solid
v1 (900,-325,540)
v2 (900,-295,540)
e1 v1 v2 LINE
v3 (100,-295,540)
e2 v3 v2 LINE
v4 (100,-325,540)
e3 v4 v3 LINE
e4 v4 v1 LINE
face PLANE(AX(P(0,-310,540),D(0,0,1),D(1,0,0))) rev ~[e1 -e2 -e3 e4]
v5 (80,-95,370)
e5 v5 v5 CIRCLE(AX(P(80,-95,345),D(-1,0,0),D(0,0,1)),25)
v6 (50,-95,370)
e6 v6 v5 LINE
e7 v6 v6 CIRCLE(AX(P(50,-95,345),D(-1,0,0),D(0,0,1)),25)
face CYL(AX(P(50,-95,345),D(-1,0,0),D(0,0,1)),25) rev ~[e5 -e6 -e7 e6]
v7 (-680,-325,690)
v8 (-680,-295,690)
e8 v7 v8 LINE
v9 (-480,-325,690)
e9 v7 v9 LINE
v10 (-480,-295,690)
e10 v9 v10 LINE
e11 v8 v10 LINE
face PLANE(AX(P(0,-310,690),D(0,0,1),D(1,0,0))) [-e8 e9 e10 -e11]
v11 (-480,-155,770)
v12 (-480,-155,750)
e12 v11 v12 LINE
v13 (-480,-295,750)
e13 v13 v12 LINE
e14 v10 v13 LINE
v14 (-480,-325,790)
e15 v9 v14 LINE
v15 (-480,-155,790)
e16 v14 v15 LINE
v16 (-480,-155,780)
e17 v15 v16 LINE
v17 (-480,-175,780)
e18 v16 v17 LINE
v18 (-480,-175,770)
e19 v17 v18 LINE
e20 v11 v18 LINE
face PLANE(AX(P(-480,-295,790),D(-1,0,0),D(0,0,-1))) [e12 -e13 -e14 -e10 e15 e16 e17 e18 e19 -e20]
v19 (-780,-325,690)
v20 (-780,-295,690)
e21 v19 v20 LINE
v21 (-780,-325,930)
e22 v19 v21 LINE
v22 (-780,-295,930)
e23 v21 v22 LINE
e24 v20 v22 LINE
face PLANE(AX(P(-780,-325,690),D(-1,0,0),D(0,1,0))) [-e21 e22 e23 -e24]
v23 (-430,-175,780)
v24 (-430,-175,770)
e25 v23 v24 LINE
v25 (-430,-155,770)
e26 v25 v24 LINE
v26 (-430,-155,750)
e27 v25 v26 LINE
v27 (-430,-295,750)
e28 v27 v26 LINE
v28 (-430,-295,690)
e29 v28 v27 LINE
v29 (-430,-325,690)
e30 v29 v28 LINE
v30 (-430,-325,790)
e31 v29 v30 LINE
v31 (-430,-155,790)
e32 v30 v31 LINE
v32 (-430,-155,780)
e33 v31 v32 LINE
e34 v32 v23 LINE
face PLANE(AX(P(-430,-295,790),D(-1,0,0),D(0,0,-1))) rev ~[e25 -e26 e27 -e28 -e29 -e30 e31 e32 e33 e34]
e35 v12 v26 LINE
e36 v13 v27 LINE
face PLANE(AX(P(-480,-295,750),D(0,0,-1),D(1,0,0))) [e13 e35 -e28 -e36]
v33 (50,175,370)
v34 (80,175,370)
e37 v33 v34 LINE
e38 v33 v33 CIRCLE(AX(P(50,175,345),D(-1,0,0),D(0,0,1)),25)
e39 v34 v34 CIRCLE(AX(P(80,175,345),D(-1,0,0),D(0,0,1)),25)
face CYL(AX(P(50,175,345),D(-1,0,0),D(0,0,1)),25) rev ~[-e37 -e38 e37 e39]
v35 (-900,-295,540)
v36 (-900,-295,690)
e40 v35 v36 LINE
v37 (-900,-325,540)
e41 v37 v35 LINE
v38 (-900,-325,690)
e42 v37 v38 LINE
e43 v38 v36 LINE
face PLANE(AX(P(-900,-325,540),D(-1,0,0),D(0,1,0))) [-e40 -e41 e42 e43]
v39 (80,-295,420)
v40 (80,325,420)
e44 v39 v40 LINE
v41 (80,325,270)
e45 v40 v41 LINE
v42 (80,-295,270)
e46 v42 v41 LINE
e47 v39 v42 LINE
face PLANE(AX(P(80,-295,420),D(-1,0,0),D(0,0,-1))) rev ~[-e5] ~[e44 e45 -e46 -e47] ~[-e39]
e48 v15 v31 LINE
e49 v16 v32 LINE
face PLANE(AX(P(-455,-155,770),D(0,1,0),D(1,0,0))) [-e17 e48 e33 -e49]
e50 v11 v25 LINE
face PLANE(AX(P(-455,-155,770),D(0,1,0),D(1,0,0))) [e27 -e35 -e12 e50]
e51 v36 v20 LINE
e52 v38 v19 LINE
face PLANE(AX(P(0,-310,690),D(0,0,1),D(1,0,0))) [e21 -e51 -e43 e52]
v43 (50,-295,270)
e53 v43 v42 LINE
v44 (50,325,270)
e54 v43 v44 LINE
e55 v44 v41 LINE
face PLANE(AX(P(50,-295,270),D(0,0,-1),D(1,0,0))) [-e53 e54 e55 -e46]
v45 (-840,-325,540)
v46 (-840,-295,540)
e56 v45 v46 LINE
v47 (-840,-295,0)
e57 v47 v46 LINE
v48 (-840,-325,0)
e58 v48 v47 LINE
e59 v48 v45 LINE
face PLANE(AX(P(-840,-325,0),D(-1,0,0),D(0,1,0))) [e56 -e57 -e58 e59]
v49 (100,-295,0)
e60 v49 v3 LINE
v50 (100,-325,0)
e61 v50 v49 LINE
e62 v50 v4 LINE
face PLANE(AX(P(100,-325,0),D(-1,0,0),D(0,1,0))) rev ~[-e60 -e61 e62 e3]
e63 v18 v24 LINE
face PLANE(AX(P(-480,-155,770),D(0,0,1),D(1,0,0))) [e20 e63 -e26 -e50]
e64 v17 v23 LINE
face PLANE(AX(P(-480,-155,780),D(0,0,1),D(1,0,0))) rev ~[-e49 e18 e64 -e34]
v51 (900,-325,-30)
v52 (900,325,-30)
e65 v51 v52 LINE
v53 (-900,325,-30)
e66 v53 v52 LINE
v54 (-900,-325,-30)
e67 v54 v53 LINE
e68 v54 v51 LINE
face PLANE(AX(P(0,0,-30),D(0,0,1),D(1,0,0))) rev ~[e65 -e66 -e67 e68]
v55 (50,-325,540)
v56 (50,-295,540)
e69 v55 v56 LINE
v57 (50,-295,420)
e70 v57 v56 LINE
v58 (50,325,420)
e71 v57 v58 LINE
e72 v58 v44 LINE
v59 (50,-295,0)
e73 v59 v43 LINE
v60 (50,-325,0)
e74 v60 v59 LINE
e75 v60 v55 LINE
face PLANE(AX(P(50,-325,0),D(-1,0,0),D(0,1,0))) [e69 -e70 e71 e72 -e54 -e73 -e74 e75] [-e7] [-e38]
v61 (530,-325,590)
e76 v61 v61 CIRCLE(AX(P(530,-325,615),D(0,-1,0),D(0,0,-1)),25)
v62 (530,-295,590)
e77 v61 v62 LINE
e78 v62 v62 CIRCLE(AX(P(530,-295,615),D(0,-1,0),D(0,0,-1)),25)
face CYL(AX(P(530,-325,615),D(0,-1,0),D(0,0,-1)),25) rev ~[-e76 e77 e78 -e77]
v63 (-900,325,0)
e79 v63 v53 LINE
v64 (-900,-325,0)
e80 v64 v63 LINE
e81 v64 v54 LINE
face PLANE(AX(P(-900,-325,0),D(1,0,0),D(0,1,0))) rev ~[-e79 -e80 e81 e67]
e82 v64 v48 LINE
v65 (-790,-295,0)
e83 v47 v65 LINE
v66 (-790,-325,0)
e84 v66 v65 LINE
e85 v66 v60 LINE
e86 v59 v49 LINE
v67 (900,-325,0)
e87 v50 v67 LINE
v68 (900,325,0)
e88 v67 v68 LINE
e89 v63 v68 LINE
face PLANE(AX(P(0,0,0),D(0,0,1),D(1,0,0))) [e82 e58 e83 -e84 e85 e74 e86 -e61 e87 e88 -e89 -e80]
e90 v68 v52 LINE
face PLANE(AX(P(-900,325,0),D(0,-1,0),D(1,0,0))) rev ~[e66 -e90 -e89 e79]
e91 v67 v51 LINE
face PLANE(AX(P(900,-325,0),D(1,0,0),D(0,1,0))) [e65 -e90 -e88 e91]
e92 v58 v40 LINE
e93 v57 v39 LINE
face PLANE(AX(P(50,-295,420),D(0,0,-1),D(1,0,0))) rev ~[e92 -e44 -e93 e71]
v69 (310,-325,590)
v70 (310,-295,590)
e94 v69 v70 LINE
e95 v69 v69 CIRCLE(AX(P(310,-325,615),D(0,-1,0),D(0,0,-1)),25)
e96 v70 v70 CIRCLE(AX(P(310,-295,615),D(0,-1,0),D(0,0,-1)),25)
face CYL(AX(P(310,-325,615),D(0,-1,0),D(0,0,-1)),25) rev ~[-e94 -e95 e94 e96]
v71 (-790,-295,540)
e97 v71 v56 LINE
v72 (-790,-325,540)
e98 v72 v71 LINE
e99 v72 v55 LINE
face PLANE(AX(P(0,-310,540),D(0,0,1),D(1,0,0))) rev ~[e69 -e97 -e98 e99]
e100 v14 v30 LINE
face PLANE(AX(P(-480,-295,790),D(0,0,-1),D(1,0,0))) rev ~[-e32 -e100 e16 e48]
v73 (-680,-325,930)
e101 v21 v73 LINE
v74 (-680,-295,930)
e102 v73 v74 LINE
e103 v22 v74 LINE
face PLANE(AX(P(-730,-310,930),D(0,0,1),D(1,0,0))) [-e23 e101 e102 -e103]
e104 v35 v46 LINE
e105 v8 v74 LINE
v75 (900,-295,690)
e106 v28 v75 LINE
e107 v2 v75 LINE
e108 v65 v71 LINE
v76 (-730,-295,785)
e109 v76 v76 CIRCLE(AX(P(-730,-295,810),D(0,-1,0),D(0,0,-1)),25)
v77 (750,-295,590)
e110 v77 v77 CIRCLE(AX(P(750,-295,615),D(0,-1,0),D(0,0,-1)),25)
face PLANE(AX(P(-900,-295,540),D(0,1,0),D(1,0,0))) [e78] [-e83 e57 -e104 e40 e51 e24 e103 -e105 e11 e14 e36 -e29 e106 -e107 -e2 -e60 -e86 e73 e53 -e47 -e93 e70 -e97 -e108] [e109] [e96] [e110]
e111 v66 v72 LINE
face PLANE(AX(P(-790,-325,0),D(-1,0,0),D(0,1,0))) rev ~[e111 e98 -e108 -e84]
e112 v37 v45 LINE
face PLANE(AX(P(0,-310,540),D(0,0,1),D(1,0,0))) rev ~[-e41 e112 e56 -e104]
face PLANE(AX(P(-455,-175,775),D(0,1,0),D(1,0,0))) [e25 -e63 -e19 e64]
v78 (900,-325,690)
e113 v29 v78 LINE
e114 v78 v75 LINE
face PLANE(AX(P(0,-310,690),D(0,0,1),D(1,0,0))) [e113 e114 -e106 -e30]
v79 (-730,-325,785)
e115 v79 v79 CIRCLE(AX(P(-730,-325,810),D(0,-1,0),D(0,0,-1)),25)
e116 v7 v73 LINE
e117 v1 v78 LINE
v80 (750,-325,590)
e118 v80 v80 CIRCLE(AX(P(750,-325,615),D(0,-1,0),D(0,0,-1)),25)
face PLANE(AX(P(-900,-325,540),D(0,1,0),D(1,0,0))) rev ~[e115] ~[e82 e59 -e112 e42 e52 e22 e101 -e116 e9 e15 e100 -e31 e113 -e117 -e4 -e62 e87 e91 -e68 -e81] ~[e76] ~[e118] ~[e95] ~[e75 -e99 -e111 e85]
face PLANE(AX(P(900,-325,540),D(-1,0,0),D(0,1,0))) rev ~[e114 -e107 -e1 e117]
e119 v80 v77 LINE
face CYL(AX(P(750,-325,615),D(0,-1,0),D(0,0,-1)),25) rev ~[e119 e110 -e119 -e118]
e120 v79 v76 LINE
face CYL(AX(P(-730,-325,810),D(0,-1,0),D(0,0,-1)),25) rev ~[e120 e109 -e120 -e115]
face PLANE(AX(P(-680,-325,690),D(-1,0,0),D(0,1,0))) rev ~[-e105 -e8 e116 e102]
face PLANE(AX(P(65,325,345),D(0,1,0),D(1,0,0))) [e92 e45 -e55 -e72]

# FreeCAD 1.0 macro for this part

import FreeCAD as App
import Part
import Sketcher

V = App.Vector


def add_polygon(sketch, points):
    """Adds a closed chain of lines whose ends are joined by coincident constraints."""
    first, n = sketch.GeometryCount, len(points)
    for a, b in zip(points, points[1:] + points[:1]):
        sketch.addGeometry(Part.LineSegment(App.Vector(*a, 0), App.Vector(*b, 0)), False)
    for i in range(n):
        sketch.addConstraint(Sketcher.Constraint("Coincident", first + i, 2, first + (i + 1) % n, 1))

doc = App.newDocument("Part")
body = doc.addObject("PartDesign::Body", "Body")

# Sketch on XY plane
sketch1 = body.newObject("Sketcher::SketchObject", "Sketch")
sketch1.AttachmentSupport = (doc.getObject("XY_Plane"), [""])
sketch1.MapMode = "FlatFace"
add_polygon(sketch1, [(-900, 325), (-900, -325), (900, -325), (900, 325)])  # lines 0-3
sketch1.addConstraint([
    Sketcher.Constraint("Vertical", 0),
    Sketcher.Constraint("Horizontal", 1),
    Sketcher.Constraint("Vertical", 2),
    Sketcher.Constraint("Horizontal", 3),
    Sketcher.Constraint("Symmetric", 0, 2, 2, 2, -1, 1),
    Sketcher.Constraint("DistanceX", 1, 1, 1, 2, 1800.0),
    Sketcher.Constraint("DistanceY", 0, 2, 0, 1, 650.0),
])
pad1 = body.newObject("PartDesign::Pad", "Pad")
pad1.Profile = sketch1
pad1.Length = 30
pad1.Reversed = True

# Sketch on XY plane
sketch2 = body.newObject("Sketcher::SketchObject", "Sketch001")
sketch2.AttachmentSupport = (doc.getObject("XY_Plane"), [""])
sketch2.MapMode = "FlatFace"
add_polygon(sketch2, [(50, -295), (50, -325), (100, -325), (100, -295)])  # lines 0-3
add_polygon(sketch2, [(-840, -295), (-840, -325), (-790, -325), (-790, -295)])  # lines 4-7
sketch2.addConstraint([
    Sketcher.Constraint("Vertical", 0),
    Sketcher.Constraint("Horizontal", 1),
    Sketcher.Constraint("Vertical", 2),
    Sketcher.Constraint("Horizontal", 3),
    Sketcher.Constraint("Vertical", 4),
    Sketcher.Constraint("Horizontal", 5),
    Sketcher.Constraint("Vertical", 6),
    Sketcher.Constraint("Horizontal", 7),
    Sketcher.Constraint("Horizontal", 1, 2, 4, 2),
    Sketcher.Constraint("Horizontal", 3, 2, 6, 2),
    Sketcher.Constraint("Equal", 3, 5),
    Sketcher.Constraint("DistanceX", 1, 1, 1, 2, 50.0),
    Sketcher.Constraint("DistanceY", 0, 2, 0, 1, 30.0),
    Sketcher.Constraint("DistanceX", -1, 1, 0, 2, 50.0),
    Sketcher.Constraint("DistanceY", 0, 2, -1, 1, 325.0),
    Sketcher.Constraint("DistanceX", 4, 2, -1, 1, 840.0),
])
pad2 = body.newObject("PartDesign::Pad", "Pad001")
pad2.Profile = sketch2
pad2.Length = 540

# Sketch on XY plane
sketch3 = body.newObject("Sketcher::SketchObject", "Sketch002")
sketch3.AttachmentSupport = (doc.getObject("XY_Plane"), [""])
sketch3.MapMode = "FlatFace"
sketch3.AttachmentOffset = App.Placement(V(0, 0, 540), App.Rotation())
add_polygon(sketch3, [(-900, -295), (-900, -325), (900, -325), (900, -295)])  # lines 0-3
sketch3.addConstraint([
    Sketcher.Constraint("Vertical", 0),
    Sketcher.Constraint("Horizontal", 1),
    Sketcher.Constraint("Vertical", 2),
    Sketcher.Constraint("Horizontal", 3),
    Sketcher.Constraint("DistanceX", 1, 1, 1, 2, 1800.0),
    Sketcher.Constraint("DistanceY", 0, 2, 0, 1, 30.0),
    Sketcher.Constraint("DistanceX", 0, 2, -1, 1, 900.0),
    Sketcher.Constraint("DistanceY", 0, 2, -1, 1, 325.0),
])
pad3 = body.newObject("PartDesign::Pad", "Pad002")
pad3.Profile = sketch3
pad3.Length = 150

# Sketch on XZ plane
sketch4 = body.newObject("Sketcher::SketchObject", "Sketch003")
sketch4.AttachmentSupport = (doc.getObject("XZ_Plane"), [""])
sketch4.MapMode = "FlatFace"
sketch4.AttachmentOffset = App.Placement(V(0, 0, 295), App.Rotation())
add_polygon(sketch4, [(50, 270), (50, 420), (80, 420), (80, 270)])  # lines 0-3
sketch4.addConstraint([
    Sketcher.Constraint("Vertical", 0),
    Sketcher.Constraint("Horizontal", 1),
    Sketcher.Constraint("Vertical", 2),
    Sketcher.Constraint("Horizontal", 3),
    Sketcher.Constraint("DistanceX", 1, 1, 1, 2, 30.0),
    Sketcher.Constraint("DistanceY", 0, 1, 0, 2, 150.0),
    Sketcher.Constraint("DistanceX", -1, 1, 0, 2, 50.0),
    Sketcher.Constraint("DistanceY", -1, 1, 0, 2, 420.0),
])
pad4 = body.newObject("PartDesign::Pad", "Pad003")
pad4.Profile = sketch4
pad4.Length = 620
pad4.Reversed = True

# Sketch on XY plane
sketch5 = body.newObject("Sketcher::SketchObject", "Sketch004")
sketch5.AttachmentSupport = (doc.getObject("XY_Plane"), [""])
sketch5.MapMode = "FlatFace"
sketch5.AttachmentOffset = App.Placement(V(0, 0, 690), App.Rotation())
add_polygon(sketch5, [(-780, -295), (-780, -325), (-680, -325), (-680, -295)])  # lines 0-3
sketch5.addConstraint([
    Sketcher.Constraint("Vertical", 0),
    Sketcher.Constraint("Horizontal", 1),
    Sketcher.Constraint("Vertical", 2),
    Sketcher.Constraint("Horizontal", 3),
    Sketcher.Constraint("DistanceX", 1, 1, 1, 2, 100.0),
    Sketcher.Constraint("DistanceY", 0, 2, 0, 1, 30.0),
    Sketcher.Constraint("DistanceX", 0, 2, -1, 1, 780.0),
    Sketcher.Constraint("DistanceY", 0, 2, -1, 1, 325.0),
])
pad5 = body.newObject("PartDesign::Pad", "Pad004")
pad5.Profile = sketch5
pad5.Length = 240

# Sketch on XY plane
sketch6 = body.newObject("Sketcher::SketchObject", "Sketch005")
sketch6.AttachmentSupport = (doc.getObject("XY_Plane"), [""])
sketch6.MapMode = "FlatFace"
sketch6.AttachmentOffset = App.Placement(V(0, 0, 690), App.Rotation())
add_polygon(sketch6, [(-480, -295), (-480, -325), (-430, -325), (-430, -295)])  # lines 0-3
sketch6.addConstraint([
    Sketcher.Constraint("Vertical", 0),
    Sketcher.Constraint("Horizontal", 1),
    Sketcher.Constraint("Vertical", 2),
    Sketcher.Constraint("Horizontal", 3),
    Sketcher.Constraint("DistanceX", 1, 1, 1, 2, 50.0),
    Sketcher.Constraint("DistanceY", 0, 2, 0, 1, 30.0),
    Sketcher.Constraint("DistanceX", 0, 2, -1, 1, 480.0),
    Sketcher.Constraint("DistanceY", 0, 2, -1, 1, 325.0),
])
pad6 = body.newObject("PartDesign::Pad", "Pad005")
pad6.Profile = sketch6
pad6.Length = 100

# Sketch on XZ plane
sketch7 = body.newObject("Sketcher::SketchObject", "Sketch006")
sketch7.AttachmentSupport = (doc.getObject("XZ_Plane"), [""])
sketch7.MapMode = "FlatFace"
sketch7.AttachmentOffset = App.Placement(V(0, 0, 295), App.Rotation())
add_polygon(sketch7, [(-480, 750), (-480, 790), (-430, 790), (-430, 750)])  # lines 0-3
sketch7.addConstraint([
    Sketcher.Constraint("Vertical", 0),
    Sketcher.Constraint("Horizontal", 1),
    Sketcher.Constraint("Vertical", 2),
    Sketcher.Constraint("Horizontal", 3),
    Sketcher.Constraint("DistanceX", 1, 1, 1, 2, 50.0),
    Sketcher.Constraint("DistanceY", 0, 1, 0, 2, 40.0),
    Sketcher.Constraint("DistanceX", 0, 2, -1, 1, 480.0),
    Sketcher.Constraint("DistanceY", -1, 1, 0, 2, 790.0),
])
pad7 = body.newObject("PartDesign::Pad", "Pad006")
pad7.Profile = sketch7
pad7.Length = 140
pad7.Reversed = True

# Sketch on XZ plane
sketch8 = body.newObject("Sketcher::SketchObject", "Sketch007")
sketch8.AttachmentSupport = (doc.getObject("XZ_Plane"), [""])
sketch8.MapMode = "FlatFace"
sketch8.AttachmentOffset = App.Placement(V(0, 0, 155), App.Rotation())
add_polygon(sketch8, [(-480, 770), (-480, 780), (-430, 780), (-430, 770)])  # lines 0-3
sketch8.addConstraint([
    Sketcher.Constraint("Vertical", 0),
    Sketcher.Constraint("Horizontal", 1),
    Sketcher.Constraint("Vertical", 2),
    Sketcher.Constraint("Horizontal", 3),
    Sketcher.Constraint("DistanceX", 1, 1, 1, 2, 50.0),
    Sketcher.Constraint("DistanceY", 0, 1, 0, 2, 10.0),
    Sketcher.Constraint("DistanceX", 0, 2, -1, 1, 480.0),
    Sketcher.Constraint("DistanceY", -1, 1, 0, 2, 780.0),
])
pocket1 = body.newObject("PartDesign::Pocket", "Pocket")
pocket1.Profile = sketch8
pocket1.Length = 20
pocket1.Reversed = True

# Sketch on XZ plane
sketch9 = body.newObject("Sketcher::SketchObject", "Sketch008")
sketch9.AttachmentSupport = (doc.getObject("XZ_Plane"), [""])
sketch9.MapMode = "FlatFace"
sketch9.AttachmentOffset = App.Placement(V(0, 0, 325), App.Rotation())
sketch9.addGeometry([
    Part.Circle(V(750, 615, 0), V(0, 0, 1), 25),
    Part.Circle(V(530, 615, 0), V(0, 0, 1), 25),
    Part.Circle(V(310, 615, 0), V(0, 0, 1), 25),
], False)
sketch9.addConstraint([
    Sketcher.Constraint("Equal", 0, 1),
    Sketcher.Constraint("Equal", 1, 2),
    Sketcher.Constraint("Horizontal", 0, 3, 1, 3),
    Sketcher.Constraint("Horizontal", 1, 3, 2, 3),
    Sketcher.Constraint("Diameter", 0, 50.0),
    Sketcher.Constraint("DistanceX", -1, 1, 0, 3, 750.0),
    Sketcher.Constraint("DistanceY", -1, 1, 0, 3, 615.0),
    Sketcher.Constraint("DistanceX", -1, 1, 1, 3, 530.0),
    Sketcher.Constraint("DistanceX", -1, 1, 2, 3, 310.0),
])
pocket2 = body.newObject("PartDesign::Pocket", "Pocket001")
pocket2.Profile = sketch9
pocket2.Length = 40

# Sketch on YZ plane
sketch10 = body.newObject("Sketcher::SketchObject", "Sketch009")
sketch10.AttachmentSupport = (doc.getObject("YZ_Plane"), [""])
sketch10.MapMode = "FlatFace"
sketch10.AttachmentOffset = App.Placement(V(0, 0, 50), App.Rotation())
sketch10.addGeometry([
    Part.Circle(V(-95, 345, 0), V(0, 0, 1), 25),
    Part.Circle(V(175, 345, 0), V(0, 0, 1), 25),
], False)
sketch10.addConstraint([
    Sketcher.Constraint("Equal", 0, 1),
    Sketcher.Constraint("Horizontal", 0, 3, 1, 3),
    Sketcher.Constraint("Diameter", 0, 50.0),
    Sketcher.Constraint("DistanceX", 0, 3, -1, 1, 95.0),
    Sketcher.Constraint("DistanceY", -1, 1, 0, 3, 345.0),
    Sketcher.Constraint("DistanceX", -1, 1, 1, 3, 175.0),
])
pocket3 = body.newObject("PartDesign::Pocket", "Pocket002")
pocket3.Profile = sketch10
pocket3.Length = 40
pocket3.Reversed = True

# Sketch on XZ plane
sketch11 = body.newObject("Sketcher::SketchObject", "Sketch010")
sketch11.AttachmentSupport = (doc.getObject("XZ_Plane"), [""])
sketch11.MapMode = "FlatFace"
sketch11.AttachmentOffset = App.Placement(V(0, 0, 325), App.Rotation())
sketch11.addGeometry(Part.Circle(V(-730, 810, 0), V(0, 0, 1), 25), False)
sketch11.addConstraint([
    Sketcher.Constraint("Diameter", 0, 50.0),
    Sketcher.Constraint("DistanceX", 0, 3, -1, 1, 730.0),
    Sketcher.Constraint("DistanceY", -1, 1, 0, 3, 810.0),
])
pocket4 = body.newObject("PartDesign::Pocket", "Pocket003")
pocket4.Profile = sketch11
pocket4.Length = 40

doc.recompute()
